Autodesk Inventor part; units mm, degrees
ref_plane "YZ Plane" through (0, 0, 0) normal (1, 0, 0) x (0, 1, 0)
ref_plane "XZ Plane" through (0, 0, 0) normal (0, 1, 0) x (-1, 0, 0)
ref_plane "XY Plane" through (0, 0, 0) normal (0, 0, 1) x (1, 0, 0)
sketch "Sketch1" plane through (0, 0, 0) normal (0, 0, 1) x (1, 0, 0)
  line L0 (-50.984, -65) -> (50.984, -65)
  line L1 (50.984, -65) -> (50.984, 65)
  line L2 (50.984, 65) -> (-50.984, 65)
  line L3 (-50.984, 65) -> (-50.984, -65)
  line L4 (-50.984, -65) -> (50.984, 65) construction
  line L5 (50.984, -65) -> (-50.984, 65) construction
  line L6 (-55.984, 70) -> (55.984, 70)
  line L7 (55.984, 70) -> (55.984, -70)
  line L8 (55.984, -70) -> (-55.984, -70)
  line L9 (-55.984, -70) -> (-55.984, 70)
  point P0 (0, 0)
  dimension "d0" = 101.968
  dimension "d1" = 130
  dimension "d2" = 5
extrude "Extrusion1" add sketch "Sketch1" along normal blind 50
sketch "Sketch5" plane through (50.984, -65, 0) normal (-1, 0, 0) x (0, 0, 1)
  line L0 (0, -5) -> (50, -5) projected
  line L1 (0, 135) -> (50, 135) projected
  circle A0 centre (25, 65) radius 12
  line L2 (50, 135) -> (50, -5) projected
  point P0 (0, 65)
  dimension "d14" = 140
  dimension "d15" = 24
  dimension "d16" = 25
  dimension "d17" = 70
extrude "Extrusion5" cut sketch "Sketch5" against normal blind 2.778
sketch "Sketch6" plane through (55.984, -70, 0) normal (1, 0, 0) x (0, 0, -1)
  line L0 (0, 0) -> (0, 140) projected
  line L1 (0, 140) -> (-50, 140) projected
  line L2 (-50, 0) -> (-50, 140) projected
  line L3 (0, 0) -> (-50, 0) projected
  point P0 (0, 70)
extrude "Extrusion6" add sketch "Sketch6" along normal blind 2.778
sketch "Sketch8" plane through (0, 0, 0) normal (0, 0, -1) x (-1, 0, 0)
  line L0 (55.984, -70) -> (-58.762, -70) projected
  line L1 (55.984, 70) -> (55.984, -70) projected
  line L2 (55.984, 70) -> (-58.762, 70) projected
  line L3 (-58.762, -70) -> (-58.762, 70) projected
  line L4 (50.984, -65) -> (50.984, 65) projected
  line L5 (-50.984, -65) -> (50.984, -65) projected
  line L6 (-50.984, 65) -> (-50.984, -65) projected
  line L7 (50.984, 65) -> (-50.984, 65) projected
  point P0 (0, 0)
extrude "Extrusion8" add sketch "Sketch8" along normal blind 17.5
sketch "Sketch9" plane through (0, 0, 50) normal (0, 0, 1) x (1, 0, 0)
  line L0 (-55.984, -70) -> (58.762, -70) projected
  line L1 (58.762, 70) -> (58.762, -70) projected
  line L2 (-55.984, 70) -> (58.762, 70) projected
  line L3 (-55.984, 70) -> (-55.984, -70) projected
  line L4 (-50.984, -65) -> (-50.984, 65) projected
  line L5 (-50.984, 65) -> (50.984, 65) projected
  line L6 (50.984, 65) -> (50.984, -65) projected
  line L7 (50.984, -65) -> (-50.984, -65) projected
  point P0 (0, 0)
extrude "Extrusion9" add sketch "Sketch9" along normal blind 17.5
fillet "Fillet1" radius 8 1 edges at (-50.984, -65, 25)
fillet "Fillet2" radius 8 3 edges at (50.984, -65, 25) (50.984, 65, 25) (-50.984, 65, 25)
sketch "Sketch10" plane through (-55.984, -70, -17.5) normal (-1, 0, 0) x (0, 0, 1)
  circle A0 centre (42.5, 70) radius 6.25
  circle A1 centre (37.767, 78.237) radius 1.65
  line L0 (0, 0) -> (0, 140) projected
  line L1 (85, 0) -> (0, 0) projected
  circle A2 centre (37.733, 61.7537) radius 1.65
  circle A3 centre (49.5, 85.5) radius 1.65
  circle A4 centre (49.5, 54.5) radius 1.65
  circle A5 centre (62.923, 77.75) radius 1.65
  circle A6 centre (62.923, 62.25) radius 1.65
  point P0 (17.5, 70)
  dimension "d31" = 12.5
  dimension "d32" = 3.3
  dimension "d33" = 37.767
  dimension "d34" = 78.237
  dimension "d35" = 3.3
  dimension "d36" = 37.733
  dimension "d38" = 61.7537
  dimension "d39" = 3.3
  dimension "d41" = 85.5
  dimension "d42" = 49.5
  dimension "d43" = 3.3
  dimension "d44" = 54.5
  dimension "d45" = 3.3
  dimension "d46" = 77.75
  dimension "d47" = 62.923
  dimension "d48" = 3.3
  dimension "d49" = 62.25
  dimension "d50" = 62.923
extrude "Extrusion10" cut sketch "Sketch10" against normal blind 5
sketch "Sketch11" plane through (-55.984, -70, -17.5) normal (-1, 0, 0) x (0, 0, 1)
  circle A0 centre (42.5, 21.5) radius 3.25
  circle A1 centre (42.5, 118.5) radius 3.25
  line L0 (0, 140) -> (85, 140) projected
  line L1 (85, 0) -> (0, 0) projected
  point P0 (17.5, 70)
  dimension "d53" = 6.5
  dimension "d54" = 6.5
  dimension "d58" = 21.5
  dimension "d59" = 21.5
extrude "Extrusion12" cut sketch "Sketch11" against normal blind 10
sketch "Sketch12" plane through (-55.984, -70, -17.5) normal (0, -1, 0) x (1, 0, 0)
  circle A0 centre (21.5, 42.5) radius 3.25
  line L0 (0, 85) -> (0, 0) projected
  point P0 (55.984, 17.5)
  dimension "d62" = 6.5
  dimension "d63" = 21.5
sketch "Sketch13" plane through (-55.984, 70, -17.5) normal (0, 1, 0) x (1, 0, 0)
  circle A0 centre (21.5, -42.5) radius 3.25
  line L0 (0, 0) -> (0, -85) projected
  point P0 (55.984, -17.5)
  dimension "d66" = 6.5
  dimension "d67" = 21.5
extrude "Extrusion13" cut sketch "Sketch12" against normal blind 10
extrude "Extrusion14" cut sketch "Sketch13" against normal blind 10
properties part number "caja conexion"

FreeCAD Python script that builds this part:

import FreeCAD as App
import Part
import Sketcher


def edges_at(feature, points):
    """Names of the edges that pass closest to the given points."""
    edges = feature.Shape.Edges
    near = lambda p: min(range(len(edges)), key=lambda i: edges[i].distToShape(Part.Vertex(*p))[0])
    return sorted({f"Edge{near(p) + 1}" for p in points})

doc = App.newDocument("Part")
params = doc.addObject("Spreadsheet::Sheet", "Params")
for row, (alias, value) in enumerate([
    ("sketch1_height", "130 mm"),
    ("pad1_length", "50 mm"),
    ("sketch2_diameter", "24 mm"),
    ("pocket1_length", "2.778 mm"),
    ("sketch3_width", "140 mm"),
    ("sketch3_height", "50 mm"),
    ("pad2_length", "2.778 mm"),
    ("sketch4_height", "140 mm"),
    ("sketch4_height2", "130 mm"),
    ("pad3_length", "17.5 mm"),
    ("sketch5_height", "140 mm"),
    ("sketch5_height2", "130 mm"),
    ("pad4_length", "17.5 mm"),
    ("fillet_radius", "8 mm"),
    ("fillet2_radius", "8 mm"),
    ("sketch6_diameter", "12.5 mm"),
    ("sketch6_diameter2", "3.3 mm"),
    ("pocket2_length", "5 mm"),
    ("sketch7_diameter", "6.5 mm"),
    ("pocket3_length", "10 mm"),
    ("sketch8_diameter", "6.5 mm"),
    ("pocket4_length", "10 mm"),
    ("sketch9_diameter", "6.5 mm"),
    ("pocket5_length", "10 mm"),
], start=1):
    params.set(f"A{row}", alias)
    params.set(f"B{row}", "=" + value)
    params.setAlias(f"B{row}", alias)

body = doc.addObject("PartDesign::Body", "Body")

# Sketch on XY plane
sketch1 = body.newObject("Sketcher::SketchObject", "Sketch")
sketch1.AttachmentSupport = (doc.getObject("XY_Plane"), [""])
sketch1.MapMode = "FlatFace"
sketch1.addGeometry(Part.LineSegment(App.Vector(56, 70, 0), App.Vector(-56, 70, 0)), False)
sketch1.addGeometry(Part.LineSegment(App.Vector(-56, 70, 0), App.Vector(-56, -70, 0)), False)
sketch1.addGeometry(Part.LineSegment(App.Vector(-56, -70, 0), App.Vector(56, -70, 0)), False)
sketch1.addGeometry(Part.LineSegment(App.Vector(56, -70, 0), App.Vector(56, 70, 0)), False)
sketch1.addGeometry(Part.LineSegment(App.Vector(51, -65, 0), App.Vector(-51, -65, 0)), False)
sketch1.addGeometry(Part.LineSegment(App.Vector(-51, -65, 0), App.Vector(-51, 65, 0)), False)
sketch1.addGeometry(Part.LineSegment(App.Vector(-51, 65, 0), App.Vector(51, 65, 0)), False)
sketch1.addGeometry(Part.LineSegment(App.Vector(51, 65, 0), App.Vector(51, -65, 0)), False)
sketch1.addConstraint(Sketcher.Constraint("Coincident", 0, 2, 1, 1))
sketch1.addConstraint(Sketcher.Constraint("Coincident", 1, 2, 2, 1))
sketch1.addConstraint(Sketcher.Constraint("Coincident", 2, 2, 3, 1))
sketch1.addConstraint(Sketcher.Constraint("Coincident", 3, 2, 0, 1))
sketch1.addConstraint(Sketcher.Constraint("Coincident", 4, 2, 5, 1))
sketch1.addConstraint(Sketcher.Constraint("Coincident", 5, 2, 6, 1))
sketch1.addConstraint(Sketcher.Constraint("Coincident", 6, 2, 7, 1))
sketch1.addConstraint(Sketcher.Constraint("Coincident", 7, 2, 4, 1))
sketch1.addConstraint(Sketcher.Constraint("Horizontal", 0))
sketch1.addConstraint(Sketcher.Constraint("Vertical", 1))
sketch1.addConstraint(Sketcher.Constraint("Horizontal", 2))
sketch1.addConstraint(Sketcher.Constraint("Vertical", 3))
sketch1.addConstraint(Sketcher.Constraint("Horizontal", 4))
sketch1.addConstraint(Sketcher.Constraint("Vertical", 5))
sketch1.addConstraint(Sketcher.Constraint("Horizontal", 6))
sketch1.addConstraint(Sketcher.Constraint("Vertical", 7))
sketch1.addConstraint(Sketcher.Constraint("Symmetric", 0, 2, 2, 2, -1, 1))
sketch1.addConstraint(Sketcher.Constraint("Symmetric", 4, 2, 6, 2, -1, 1))
sketch1.addConstraint(Sketcher.Constraint("DistanceY", 5, 1, 5, 2, 130.0))
sketch1.addConstraint(Sketcher.Constraint("DistanceX", 1, 2, 4, 2, 5.0))
sketch1.addConstraint(Sketcher.Constraint("DistanceY", 1, 2, 4, 2, 5.0))
sketch1.addConstraint(Sketcher.Constraint("DistanceX", 4, 2, 4, 1, 101.968))
sketch1.setExpression("Constraints[18]", "Params.sketch1_height")
pad1 = body.newObject("PartDesign::Pad", "Pad")
pad1.Profile = sketch1
pad1.setExpression("Length", "Params.pad1_length")

# Sketch on YZ plane
sketch2 = body.newObject("Sketcher::SketchObject", "Sketch001")
sketch2.AttachmentSupport = (doc.getObject("YZ_Plane"), [""])
sketch2.MapMode = "FlatFace"
sketch2.AttachmentOffset = App.Placement(App.Vector(0, 0, 50.984), App.Rotation())
sketch2.addGeometry(Part.Circle(App.Vector(0, 25, 0), App.Vector(0, 0, 1), 12), False)
sketch2.addConstraint(Sketcher.Constraint("PointOnObject", 0, 3, -2))
sketch2.addConstraint(Sketcher.Constraint("Diameter", 0, 24.0))
sketch2.addConstraint(Sketcher.Constraint("DistanceY", -1, 1, 0, 3, 25.0))
sketch2.setExpression("Constraints[1]", "Params.sketch2_diameter")
pocket1 = body.newObject("PartDesign::Pocket", "Pocket")
pocket1.Profile = sketch2
pocket1.setExpression("Length", "Params.pocket1_length")
pocket1.Reversed = True

# Sketch on YZ plane
sketch3 = body.newObject("Sketcher::SketchObject", "Sketch002")
sketch3.AttachmentSupport = (doc.getObject("YZ_Plane"), [""])
sketch3.MapMode = "FlatFace"
sketch3.AttachmentOffset = App.Placement(App.Vector(0, 0, 55.984), App.Rotation())
sketch3.addGeometry(Part.LineSegment(App.Vector(-70, 50, 0), App.Vector(-70, 0, 0)), False)
sketch3.addGeometry(Part.LineSegment(App.Vector(-70, 0, 0), App.Vector(70, 0, 0)), False)
sketch3.addGeometry(Part.LineSegment(App.Vector(70, 0, 0), App.Vector(70, 50, 0)), False)
sketch3.addGeometry(Part.LineSegment(App.Vector(70, 50, 0), App.Vector(-70, 50, 0)), False)
sketch3.addConstraint(Sketcher.Constraint("Coincident", 0, 2, 1, 1))
sketch3.addConstraint(Sketcher.Constraint("Coincident", 1, 2, 2, 1))
sketch3.addConstraint(Sketcher.Constraint("Coincident", 2, 2, 3, 1))
sketch3.addConstraint(Sketcher.Constraint("Coincident", 3, 2, 0, 1))
sketch3.addConstraint(Sketcher.Constraint("Vertical", 0))
sketch3.addConstraint(Sketcher.Constraint("Horizontal", 1))
sketch3.addConstraint(Sketcher.Constraint("Vertical", 2))
sketch3.addConstraint(Sketcher.Constraint("Horizontal", 3))
sketch3.addConstraint(Sketcher.Constraint("Symmetric", 0, 2, 1, 2, -1, 1))
sketch3.addConstraint(Sketcher.Constraint("DistanceX", 1, 1, 1, 2, 140.0))
sketch3.addConstraint(Sketcher.Constraint("DistanceY", 0, 2, 0, 1, 50.0))
sketch3.setExpression("Constraints[9]", "Params.sketch3_width")
sketch3.setExpression("Constraints[10]", "Params.sketch3_height")
pad2 = body.newObject("PartDesign::Pad", "Pad001")
pad2.Profile = sketch3
pad2.setExpression("Length", "Params.pad2_length")

# Sketch on XY plane
sketch4 = body.newObject("Sketcher::SketchObject", "Sketch003")
sketch4.AttachmentSupport = (doc.getObject("XY_Plane"), [""])
sketch4.MapMode = "FlatFace"
sketch4.addGeometry(Part.LineSegment(App.Vector(59, -70, 0), App.Vector(-56, -70, 0)), False)
sketch4.addGeometry(Part.LineSegment(App.Vector(-56, -70, 0), App.Vector(-56, 70, 0)), False)
sketch4.addGeometry(Part.LineSegment(App.Vector(-56, 70, 0), App.Vector(59, 70, 0)), False)
sketch4.addGeometry(Part.LineSegment(App.Vector(59, 70, 0), App.Vector(59, -70, 0)), False)
sketch4.addGeometry(Part.LineSegment(App.Vector(-51, 65, 0), App.Vector(-51, -65, 0)), False)
sketch4.addGeometry(Part.LineSegment(App.Vector(-51, -65, 0), App.Vector(51, -65, 0)), False)
sketch4.addGeometry(Part.LineSegment(App.Vector(51, -65, 0), App.Vector(51, 65, 0)), False)
sketch4.addGeometry(Part.LineSegment(App.Vector(51, 65, 0), App.Vector(-51, 65, 0)), False)
sketch4.addConstraint(Sketcher.Constraint("Coincident", 0, 2, 1, 1))
sketch4.addConstraint(Sketcher.Constraint("Coincident", 1, 2, 2, 1))
sketch4.addConstraint(Sketcher.Constraint("Coincident", 2, 2, 3, 1))
sketch4.addConstraint(Sketcher.Constraint("Coincident", 3, 2, 0, 1))
sketch4.addConstraint(Sketcher.Constraint("Coincident", 4, 2, 5, 1))
sketch4.addConstraint(Sketcher.Constraint("Coincident", 5, 2, 6, 1))
sketch4.addConstraint(Sketcher.Constraint("Coincident", 6, 2, 7, 1))
sketch4.addConstraint(Sketcher.Constraint("Coincident", 7, 2, 4, 1))
sketch4.addConstraint(Sketcher.Constraint("Horizontal", 0))
sketch4.addConstraint(Sketcher.Constraint("Vertical", 1))
sketch4.addConstraint(Sketcher.Constraint("Horizontal", 2))
sketch4.addConstraint(Sketcher.Constraint("Vertical", 3))
sketch4.addConstraint(Sketcher.Constraint("Vertical", 4))
sketch4.addConstraint(Sketcher.Constraint("Horizontal", 5))
sketch4.addConstraint(Sketcher.Constraint("Vertical", 6))
sketch4.addConstraint(Sketcher.Constraint("Horizontal", 7))
sketch4.addConstraint(Sketcher.Constraint("Symmetric", 4, 2, 6, 2, -1, 1))
sketch4.addConstraint(Sketcher.Constraint("DistanceY", 1, 1, 1, 2, 140.0))
sketch4.addConstraint(Sketcher.Constraint("DistanceY", 4, 2, 4, 1, 130.0))
sketch4.addConstraint(Sketcher.Constraint("DistanceY", 0, 2, -1, 1, 70.0))
sketch4.addConstraint(Sketcher.Constraint("DistanceX", 0, 2, 4, 2, 5.0))
sketch4.addConstraint(Sketcher.Constraint("DistanceX", 0, 2, 0, 1, 114.746))
sketch4.addConstraint(Sketcher.Constraint("DistanceX", 5, 1, 5, 2, 101.968))
sketch4.setExpression("Constraints[17]", "Params.sketch4_height")
sketch4.setExpression("Constraints[18]", "Params.sketch4_height2")
pad3 = body.newObject("PartDesign::Pad", "Pad002")
pad3.Profile = sketch4
pad3.setExpression("Length", "Params.pad3_length")
pad3.Reversed = True

# Sketch on XY plane
sketch5 = body.newObject("Sketcher::SketchObject", "Sketch004")
sketch5.AttachmentSupport = (doc.getObject("XY_Plane"), [""])
sketch5.MapMode = "FlatFace"
sketch5.AttachmentOffset = App.Placement(App.Vector(0, 0, 50), App.Rotation())
sketch5.addGeometry(Part.LineSegment(App.Vector(-56, 70, 0), App.Vector(-56, -70, 0)), False)
sketch5.addGeometry(Part.LineSegment(App.Vector(-56, -70, 0), App.Vector(59, -70, 0)), False)
sketch5.addGeometry(Part.LineSegment(App.Vector(59, -70, 0), App.Vector(59, 70, 0)), False)
sketch5.addGeometry(Part.LineSegment(App.Vector(59, 70, 0), App.Vector(-56, 70, 0)), False)
sketch5.addGeometry(Part.LineSegment(App.Vector(51, -65, 0), App.Vector(-51, -65, 0)), False)
sketch5.addGeometry(Part.LineSegment(App.Vector(-51, -65, 0), App.Vector(-51, 65, 0)), False)
sketch5.addGeometry(Part.LineSegment(App.Vector(-51, 65, 0), App.Vector(51, 65, 0)), False)
sketch5.addGeometry(Part.LineSegment(App.Vector(51, 65, 0), App.Vector(51, -65, 0)), False)
sketch5.addConstraint(Sketcher.Constraint("Coincident", 0, 2, 1, 1))
sketch5.addConstraint(Sketcher.Constraint("Coincident", 1, 2, 2, 1))
sketch5.addConstraint(Sketcher.Constraint("Coincident", 2, 2, 3, 1))
sketch5.addConstraint(Sketcher.Constraint("Coincident", 3, 2, 0, 1))
sketch5.addConstraint(Sketcher.Constraint("Coincident", 4, 2, 5, 1))
sketch5.addConstraint(Sketcher.Constraint("Coincident", 5, 2, 6, 1))
sketch5.addConstraint(Sketcher.Constraint("Coincident", 6, 2, 7, 1))
sketch5.addConstraint(Sketcher.Constraint("Coincident", 7, 2, 4, 1))
sketch5.addConstraint(Sketcher.Constraint("Vertical", 0))
sketch5.addConstraint(Sketcher.Constraint("Horizontal", 1))
sketch5.addConstraint(Sketcher.Constraint("Vertical", 2))
sketch5.addConstraint(Sketcher.Constraint("Horizontal", 3))
sketch5.addConstraint(Sketcher.Constraint("Horizontal", 4))
sketch5.addConstraint(Sketcher.Constraint("Vertical", 5))
sketch5.addConstraint(Sketcher.Constraint("Horizontal", 6))
sketch5.addConstraint(Sketcher.Constraint("Vertical", 7))
sketch5.addConstraint(Sketcher.Constraint("Symmetric", 4, 2, 6, 2, -1, 1))
sketch5.addConstraint(Sketcher.Constraint("DistanceY", 0, 2, 0, 1, 140.0))
sketch5.addConstraint(Sketcher.Constraint("DistanceY", 5, 1, 5, 2, 130.0))
sketch5.addConstraint(Sketcher.Constraint("DistanceY", 0, 2, -1, 1, 70.0))
sketch5.addConstraint(Sketcher.Constraint("DistanceX", 0, 2, 4, 2, 5.0))
sketch5.addConstraint(Sketcher.Constraint("DistanceX", 1, 1, 1, 2, 114.746))
sketch5.addConstraint(Sketcher.Constraint("DistanceX", 4, 2, 4, 1, 101.968))
sketch5.setExpression("Constraints[17]", "Params.sketch5_height")
sketch5.setExpression("Constraints[18]", "Params.sketch5_height2")
pad4 = body.newObject("PartDesign::Pad", "Pad003")
pad4.Profile = sketch5
pad4.setExpression("Length", "Params.pad4_length")
doc.recompute()

fillet = body.newObject("PartDesign::Fillet", "Fillet")
fillet.Base = (pad4, edges_at(pad4, [(-50.984, -65, 25)]))
fillet.setExpression("Radius", "Params.fillet_radius")
doc.recompute()

fillet2 = body.newObject("PartDesign::Fillet", "Fillet001")
fillet2.Base = (fillet, edges_at(fillet, [(50.984, -65, 25), (50.984, 65, 25), (-50.984, 65, 25)]))
fillet2.setExpression("Radius", "Params.fillet2_radius")

# Sketch on YZ plane
sketch6 = body.newObject("Sketcher::SketchObject", "Sketch005")
sketch6.AttachmentSupport = (doc.getObject("YZ_Plane"), [""])
sketch6.MapMode = "FlatFace"
sketch6.AttachmentOffset = App.Placement(App.Vector(0, 0, -55.984), App.Rotation())
sketch6.addGeometry(Part.Circle(App.Vector(0, 25, 0), App.Vector(0, 0, 1), 6.2), False)
sketch6.addGeometry(Part.Circle(App.Vector(8.2, 20.3, 0), App.Vector(0, 0, 1), 1.6), False)
sketch6.addGeometry(Part.Circle(App.Vector(-8.2, 20.2, 0), App.Vector(0, 0, 1), 1.6), False)
sketch6.addGeometry(Part.Circle(App.Vector(15.5, 32, 0), App.Vector(0, 0, 1), 1.6), False)
sketch6.addGeometry(Part.Circle(App.Vector(-15.5, 32, 0), App.Vector(0, 0, 1), 1.6), False)
sketch6.addGeometry(Part.Circle(App.Vector(7.8, 45.4, 0), App.Vector(0, 0, 1), 1.6), False)
sketch6.addGeometry(Part.Circle(App.Vector(-7.8, 45.4, 0), App.Vector(0, 0, 1), 1.6), False)
sketch6.addConstraint(Sketcher.Constraint("Equal", 1, 2))
sketch6.addConstraint(Sketcher.Constraint("Equal", 2, 3))
sketch6.addConstraint(Sketcher.Constraint("Equal", 3, 4))
sketch6.addConstraint(Sketcher.Constraint("Equal", 4, 5))
sketch6.addConstraint(Sketcher.Constraint("Equal", 5, 6))
sketch6.addConstraint(Sketcher.Constraint("Symmetric", 3, 3, 4, 3, -2))
sketch6.addConstraint(Sketcher.Constraint("Symmetric", 5, 3, 6, 3, -2))
sketch6.addConstraint(Sketcher.Constraint("PointOnObject", 0, 3, -2))
sketch6.addConstraint(Sketcher.Constraint("Diameter", 0, 12.5))
sketch6.addConstraint(Sketcher.Constraint("Diameter", 1, 3.3))
sketch6.addConstraint(Sketcher.Constraint("DistanceY", -1, 1, 0, 3, 25.0))
sketch6.addConstraint(Sketcher.Constraint("DistanceY", -1, 1, 3, 3, 32.0))
sketch6.addConstraint(Sketcher.Constraint("DistanceX", 4, 3, 3, 3, 31.0))
sketch6.addConstraint(Sketcher.Constraint("DistanceX", 6, 3, 5, 3, 15.5))
sketch6.addConstraint(Sketcher.Constraint("DistanceY", 2, 3, 5, 3, 25.19))
sketch6.addConstraint(Sketcher.Constraint("DistanceX", -1, 1, 1, 3, 8.237))
sketch6.addConstraint(Sketcher.Constraint("DistanceY", -1, 1, 1, 3, 20.267))
sketch6.addConstraint(Sketcher.Constraint("DistanceY", -1, 1, 2, 3, 20.233))
sketch6.addConstraint(Sketcher.Constraint("DistanceX", 2, 3, -1, 1, 8.2463))
sketch6.setExpression("Constraints[8]", "Params.sketch6_diameter")
sketch6.setExpression("Constraints[9]", "Params.sketch6_diameter2")
pocket2 = body.newObject("PartDesign::Pocket", "Pocket001")
pocket2.Profile = sketch6
pocket2.setExpression("Length", "Params.pocket2_length")
pocket2.Reversed = True

# Sketch on YZ plane
sketch7 = body.newObject("Sketcher::SketchObject", "Sketch006")
sketch7.AttachmentSupport = (doc.getObject("YZ_Plane"), [""])
sketch7.MapMode = "FlatFace"
sketch7.AttachmentOffset = App.Placement(App.Vector(0, 0, -55.984), App.Rotation())
sketch7.addGeometry(Part.Circle(App.Vector(-48.5, 25, 0), App.Vector(0, 0, 1), 3.2), False)
sketch7.addGeometry(Part.Circle(App.Vector(48.5, 25, 0), App.Vector(0, 0, 1), 3.2), False)
sketch7.addConstraint(Sketcher.Constraint("Equal", 0, 1))
sketch7.addConstraint(Sketcher.Constraint("Symmetric", 0, 3, 1, 3, -2))
sketch7.addConstraint(Sketcher.Constraint("Diameter", 0, 6.5))
sketch7.addConstraint(Sketcher.Constraint("DistanceY", -1, 1, 0, 3, 25.0))
sketch7.addConstraint(Sketcher.Constraint("DistanceX", 0, 3, 1, 3, 97.0))
sketch7.setExpression("Constraints[2]", "Params.sketch7_diameter")
pocket3 = body.newObject("PartDesign::Pocket", "Pocket002")
pocket3.Profile = sketch7
pocket3.setExpression("Length", "Params.pocket3_length")
pocket3.Reversed = True

# Sketch on XZ plane
sketch8 = body.newObject("Sketcher::SketchObject", "Sketch007")
sketch8.AttachmentSupport = (doc.getObject("XZ_Plane"), [""])
sketch8.MapMode = "FlatFace"
sketch8.AttachmentOffset = App.Placement(App.Vector(0, 0, 70), App.Rotation())
sketch8.addGeometry(Part.Circle(App.Vector(-34.5, 25, 0), App.Vector(0, 0, 1), 3.2), False)
sketch8.addConstraint(Sketcher.Constraint("Diameter", 0, 6.5))
sketch8.addConstraint(Sketcher.Constraint("DistanceY", -1, 1, 0, 3, 25.0))
sketch8.addConstraint(Sketcher.Constraint("DistanceX", 0, 3, -1, 1, 34.484))
sketch8.setExpression("Constraints[0]", "Params.sketch8_diameter")
pocket4 = body.newObject("PartDesign::Pocket", "Pocket003")
pocket4.Profile = sketch8
pocket4.setExpression("Length", "Params.pocket4_length")

# Sketch on XZ plane
sketch9 = body.newObject("Sketcher::SketchObject", "Sketch008")
sketch9.AttachmentSupport = (doc.getObject("XZ_Plane"), [""])
sketch9.MapMode = "FlatFace"
sketch9.AttachmentOffset = App.Placement(App.Vector(0, 0, -70), App.Rotation())
sketch9.addGeometry(Part.Circle(App.Vector(-34.5, 25, 0), App.Vector(0, 0, 1), 3.2), False)
sketch9.addConstraint(Sketcher.Constraint("Diameter", 0, 6.5))
sketch9.addConstraint(Sketcher.Constraint("DistanceY", -1, 1, 0, 3, 25.0))
sketch9.addConstraint(Sketcher.Constraint("DistanceX", 0, 3, -1, 1, 34.484))
sketch9.setExpression("Constraints[0]", "Params.sketch9_diameter")
pocket5 = body.newObject("PartDesign::Pocket", "Pocket004")
pocket5.Profile = sketch9
pocket5.setExpression("Length", "Params.pocket5_length")
pocket5.Reversed = True

doc.recompute()
